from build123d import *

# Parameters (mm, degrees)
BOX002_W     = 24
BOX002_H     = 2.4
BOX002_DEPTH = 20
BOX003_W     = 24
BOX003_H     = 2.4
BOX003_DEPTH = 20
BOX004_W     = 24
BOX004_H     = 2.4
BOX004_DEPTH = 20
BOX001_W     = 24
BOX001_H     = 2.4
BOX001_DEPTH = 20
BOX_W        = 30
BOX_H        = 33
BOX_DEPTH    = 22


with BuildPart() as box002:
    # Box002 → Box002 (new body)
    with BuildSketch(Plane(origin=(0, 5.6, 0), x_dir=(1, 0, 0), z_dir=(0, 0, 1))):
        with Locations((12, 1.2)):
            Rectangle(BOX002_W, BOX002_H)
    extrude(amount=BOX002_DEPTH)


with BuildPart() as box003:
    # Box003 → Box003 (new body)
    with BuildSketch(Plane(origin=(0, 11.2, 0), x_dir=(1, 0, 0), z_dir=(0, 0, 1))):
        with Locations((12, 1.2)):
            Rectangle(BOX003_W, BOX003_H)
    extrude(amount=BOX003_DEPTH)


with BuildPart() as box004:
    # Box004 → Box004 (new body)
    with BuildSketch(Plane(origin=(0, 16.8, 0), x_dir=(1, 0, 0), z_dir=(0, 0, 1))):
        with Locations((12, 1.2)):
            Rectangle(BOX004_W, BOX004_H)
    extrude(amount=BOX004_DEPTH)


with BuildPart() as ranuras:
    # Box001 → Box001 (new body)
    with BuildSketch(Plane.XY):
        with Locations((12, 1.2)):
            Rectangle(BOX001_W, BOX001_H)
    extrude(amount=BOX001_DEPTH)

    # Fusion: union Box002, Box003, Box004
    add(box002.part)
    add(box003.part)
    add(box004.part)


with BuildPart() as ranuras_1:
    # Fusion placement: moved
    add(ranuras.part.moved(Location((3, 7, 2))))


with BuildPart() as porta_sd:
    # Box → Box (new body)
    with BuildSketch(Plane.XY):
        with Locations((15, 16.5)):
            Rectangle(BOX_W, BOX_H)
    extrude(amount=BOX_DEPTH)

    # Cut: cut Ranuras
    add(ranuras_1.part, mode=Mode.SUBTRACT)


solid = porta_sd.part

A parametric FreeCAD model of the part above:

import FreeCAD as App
import Part
import Sketcher
Q = App.Units.Quantity


def add_polygon(sketch, points):
    """Adds a closed chain of lines whose ends are joined by coincident constraints."""
    first, n = sketch.GeometryCount, len(points)
    for a, b in zip(points, points[1:] + points[:1]):
        sketch.addGeometry(Part.LineSegment(App.Vector(*a, 0), App.Vector(*b, 0)), False)
    for i in range(n):
        sketch.addConstraint(Sketcher.Constraint("Coincident", first + i, 2, first + (i + 1) % n, 1))

doc = App.newDocument("Part")
body = doc.addObject("PartDesign::Body", "Body")

# Sketch on XY plane
sketch1 = body.newObject("Sketcher::SketchObject", "Sketch")
sketch1.AttachmentSupport = (doc.getObject("XY_Plane"), [""])
sketch1.MapMode = "FlatFace"
add_polygon(sketch1, [(0, 8), (0, 5.6), (24, 5.6), (24, 8)])  # lines 0-3
sketch1.addConstraint(Sketcher.Constraint("Vertical", 0))
sketch1.addConstraint(Sketcher.Constraint("Horizontal", 1))
sketch1.addConstraint(Sketcher.Constraint("Vertical", 2))
sketch1.addConstraint(Sketcher.Constraint("Horizontal", 3))
sketch1.addConstraint(Sketcher.Constraint("PointOnObject", 0, 2, -2))
sketch1.addConstraint(Sketcher.Constraint("DistanceX", 1, 1, 1, 2, Q("24 mm")))
sketch1.addConstraint(Sketcher.Constraint("DistanceY", 0, 2, 0, 1, Q("2.4 mm")))
sketch1.addConstraint(Sketcher.Constraint("DistanceY", -1, 1, 2, 2, Q("8 mm")))
pad1 = body.newObject("PartDesign::Pad", "Pad")
pad1.Profile = sketch1
pad1.Length = 20
body2 = doc.addObject("PartDesign::Body", "Body001")

# Sketch on XY plane
sketch2 = body2.newObject("Sketcher::SketchObject", "Sketch001")
sketch2.AttachmentSupport = (doc.getObject("XY_Plane001"), [""])
sketch2.MapMode = "FlatFace"
add_polygon(sketch2, [(0, 13.6), (0, 11.2), (24, 11.2), (24, 13.6)])  # lines 0-3
sketch2.addConstraint(Sketcher.Constraint("Vertical", 0))
sketch2.addConstraint(Sketcher.Constraint("Horizontal", 1))
sketch2.addConstraint(Sketcher.Constraint("Vertical", 2))
sketch2.addConstraint(Sketcher.Constraint("Horizontal", 3))
sketch2.addConstraint(Sketcher.Constraint("PointOnObject", 0, 2, -2))
sketch2.addConstraint(Sketcher.Constraint("DistanceX", 1, 1, 1, 2, Q("24 mm")))
sketch2.addConstraint(Sketcher.Constraint("DistanceY", 0, 2, 0, 1, Q("2.4 mm")))
sketch2.addConstraint(Sketcher.Constraint("DistanceY", -1, 1, 0, 2, Q("11.2 mm")))
pad2 = body2.newObject("PartDesign::Pad", "Pad001")
pad2.Profile = sketch2
pad2.Length = 20
body3 = doc.addObject("PartDesign::Body", "Body002")

# Sketch on XY plane
sketch3 = body3.newObject("Sketcher::SketchObject", "Sketch002")
sketch3.AttachmentSupport = (doc.getObject("XY_Plane002"), [""])
sketch3.MapMode = "FlatFace"
add_polygon(sketch3, [(0, 19.2), (0, 16.8), (24, 16.8), (24, 19.2)])  # lines 0-3
sketch3.addConstraint(Sketcher.Constraint("Vertical", 0))
sketch3.addConstraint(Sketcher.Constraint("Horizontal", 1))
sketch3.addConstraint(Sketcher.Constraint("Vertical", 2))
sketch3.addConstraint(Sketcher.Constraint("Horizontal", 3))
sketch3.addConstraint(Sketcher.Constraint("PointOnObject", 0, 2, -2))
sketch3.addConstraint(Sketcher.Constraint("DistanceX", 1, 1, 1, 2, Q("24 mm")))
sketch3.addConstraint(Sketcher.Constraint("DistanceY", 0, 2, 0, 1, Q("2.4 mm")))
sketch3.addConstraint(Sketcher.Constraint("DistanceY", -1, 1, 0, 2, Q("16.8 mm")))
pad3 = body3.newObject("PartDesign::Pad", "Pad002")
pad3.Profile = sketch3
pad3.Length = 20
body4 = doc.addObject("PartDesign::Body", "Body003")
body4.AllowCompound = True

# Sketch on XY plane
sketch4 = body4.newObject("Sketcher::SketchObject", "Sketch003")
sketch4.AttachmentSupport = (doc.getObject("XY_Plane003"), [""])
sketch4.MapMode = "FlatFace"
add_polygon(sketch4, [(0, 2.4), (0, 0), (24, 0), (24, 2.4)])  # lines 0-3
sketch4.addConstraint(Sketcher.Constraint("Vertical", 0))
sketch4.addConstraint(Sketcher.Constraint("Horizontal", 1))
sketch4.addConstraint(Sketcher.Constraint("Vertical", 2))
sketch4.addConstraint(Sketcher.Constraint("Horizontal", 3))
sketch4.addConstraint(Sketcher.Constraint("Coincident", 0, 2, -1, 1))
sketch4.addConstraint(Sketcher.Constraint("DistanceX", 1, 1, 1, 2, Q("24 mm")))
sketch4.addConstraint(Sketcher.Constraint("DistanceY", 0, 2, 0, 1, Q("2.4 mm")))
pad4 = body4.newObject("PartDesign::Pad", "Pad003")
pad4.Profile = sketch4
pad4.Length = 20
doc.recompute()

boolean = body4.newObject("PartDesign::Boolean", "Boolean")
boolean.Type = "Fuse"
boolean.addObjects([body])
doc.recompute()

boolean2 = body4.newObject("PartDesign::Boolean", "Boolean001")
boolean2.Type = "Fuse"
boolean2.addObjects([body2])
doc.recompute()

boolean3 = body4.newObject("PartDesign::Boolean", "Boolean002")
boolean3.Type = "Fuse"
boolean3.addObjects([body3])
body5 = doc.addObject("PartDesign::Body", "Body004")
body5.AllowCompound = True
doc.recompute()

body4.Placement = App.Placement(App.Vector(3, 7, 2), App.Rotation(App.Vector(0, 0, 1), 0))
boolean4 = body5.newObject("PartDesign::Boolean", "Boolean003")
boolean4.Type = "Fuse"
boolean4.addObjects([body4])
body6 = doc.addObject("PartDesign::Body", "Body005")

# Sketch on XY plane
sketch5 = body6.newObject("Sketcher::SketchObject", "Sketch004")
sketch5.AttachmentSupport = (doc.getObject("XY_Plane005"), [""])
sketch5.MapMode = "FlatFace"
add_polygon(sketch5, [(0, 33), (0, 0), (30, 0), (30, 33)])  # lines 0-3
sketch5.addConstraint(Sketcher.Constraint("Vertical", 0))
sketch5.addConstraint(Sketcher.Constraint("Horizontal", 1))
sketch5.addConstraint(Sketcher.Constraint("Vertical", 2))
sketch5.addConstraint(Sketcher.Constraint("Horizontal", 3))
sketch5.addConstraint(Sketcher.Constraint("Coincident", 0, 2, -1, 1))
sketch5.addConstraint(Sketcher.Constraint("DistanceX", 1, 1, 1, 2, Q("30 mm")))
sketch5.addConstraint(Sketcher.Constraint("DistanceY", 0, 2, 0, 1, Q("33 mm")))
pad5 = body6.newObject("PartDesign::Pad", "Pad004")
pad5.Profile = sketch5
pad5.Length = 22
doc.recompute()

boolean5 = body6.newObject("PartDesign::Boolean", "Boolean004")
boolean5.Type = "Cut"
boolean5.addObjects([body5])

doc.recompute()
